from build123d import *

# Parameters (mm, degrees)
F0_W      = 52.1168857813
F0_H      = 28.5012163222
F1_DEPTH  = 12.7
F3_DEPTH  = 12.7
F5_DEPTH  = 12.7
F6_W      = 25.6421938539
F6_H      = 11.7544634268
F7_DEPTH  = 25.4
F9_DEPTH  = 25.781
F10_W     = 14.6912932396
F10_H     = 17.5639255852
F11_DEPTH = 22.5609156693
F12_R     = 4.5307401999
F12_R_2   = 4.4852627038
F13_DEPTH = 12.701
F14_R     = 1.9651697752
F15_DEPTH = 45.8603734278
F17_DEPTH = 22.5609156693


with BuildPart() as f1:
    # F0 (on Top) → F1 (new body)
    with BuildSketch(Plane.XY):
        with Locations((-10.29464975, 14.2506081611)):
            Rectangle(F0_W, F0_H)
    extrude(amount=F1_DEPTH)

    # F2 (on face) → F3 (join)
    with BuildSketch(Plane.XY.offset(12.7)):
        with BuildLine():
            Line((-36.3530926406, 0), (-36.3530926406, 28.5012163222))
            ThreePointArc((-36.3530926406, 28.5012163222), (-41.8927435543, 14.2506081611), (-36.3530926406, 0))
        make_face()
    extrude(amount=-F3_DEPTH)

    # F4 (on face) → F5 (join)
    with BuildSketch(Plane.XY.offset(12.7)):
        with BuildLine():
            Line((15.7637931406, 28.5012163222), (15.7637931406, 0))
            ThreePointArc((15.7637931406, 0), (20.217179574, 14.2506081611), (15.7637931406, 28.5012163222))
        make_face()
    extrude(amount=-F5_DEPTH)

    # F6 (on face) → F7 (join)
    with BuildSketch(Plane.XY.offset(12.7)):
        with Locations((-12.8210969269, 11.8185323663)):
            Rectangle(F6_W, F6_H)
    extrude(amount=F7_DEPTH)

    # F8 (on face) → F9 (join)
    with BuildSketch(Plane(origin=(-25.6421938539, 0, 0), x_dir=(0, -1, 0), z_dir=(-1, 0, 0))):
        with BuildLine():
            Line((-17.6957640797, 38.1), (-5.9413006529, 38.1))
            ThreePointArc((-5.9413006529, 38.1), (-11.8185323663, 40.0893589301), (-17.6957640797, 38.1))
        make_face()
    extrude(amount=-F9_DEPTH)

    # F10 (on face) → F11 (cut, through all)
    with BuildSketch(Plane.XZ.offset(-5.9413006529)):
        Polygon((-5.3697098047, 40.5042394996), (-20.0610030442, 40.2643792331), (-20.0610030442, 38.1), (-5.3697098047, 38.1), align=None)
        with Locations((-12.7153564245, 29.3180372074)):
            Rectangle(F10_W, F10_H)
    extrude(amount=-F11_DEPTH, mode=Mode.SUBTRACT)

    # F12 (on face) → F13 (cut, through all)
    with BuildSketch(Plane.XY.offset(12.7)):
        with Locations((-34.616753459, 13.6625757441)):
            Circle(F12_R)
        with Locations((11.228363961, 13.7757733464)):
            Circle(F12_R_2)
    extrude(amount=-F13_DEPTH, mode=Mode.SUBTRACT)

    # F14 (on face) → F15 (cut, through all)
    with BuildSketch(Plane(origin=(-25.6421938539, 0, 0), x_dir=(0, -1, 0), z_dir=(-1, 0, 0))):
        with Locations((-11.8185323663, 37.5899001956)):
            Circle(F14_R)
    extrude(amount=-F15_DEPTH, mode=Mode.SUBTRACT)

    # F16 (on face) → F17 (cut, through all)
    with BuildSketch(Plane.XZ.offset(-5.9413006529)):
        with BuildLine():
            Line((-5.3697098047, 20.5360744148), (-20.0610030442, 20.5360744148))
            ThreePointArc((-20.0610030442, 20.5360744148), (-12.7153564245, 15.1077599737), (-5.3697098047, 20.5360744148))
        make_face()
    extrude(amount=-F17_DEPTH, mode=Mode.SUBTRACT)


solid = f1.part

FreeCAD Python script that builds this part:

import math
import FreeCAD as App
import Part
import Sketcher
Q = App.Units.Quantity

doc = App.newDocument("Part")
body = doc.addObject("PartDesign::Body", "Body")

sketch1 = body.newObject("Sketcher::SketchObject", "Sketch")
sketch1.AttachmentSupport = (doc.getObject("XY_Plane"), [""])
sketch1.MapMode = "FlatFace"
sketch1.addGeometry([
    Part.LineSegment(App.Vector(-36, 29, 0), App.Vector(-36, 0, 0)),
    Part.LineSegment(App.Vector(-36, 0, 0), App.Vector(16, 0, 0)),
    Part.LineSegment(App.Vector(16, 0, 0), App.Vector(16, 29, 0)),
    Part.LineSegment(App.Vector(16, 29, 0), App.Vector(-36, 29, 0)),
], False)
sketch1.addConstraint([
    Sketcher.Constraint("Coincident", 0, 2, 1, 1),
    Sketcher.Constraint("Coincident", 1, 2, 2, 1),
    Sketcher.Constraint("Coincident", 2, 2, 3, 1),
    Sketcher.Constraint("Coincident", 3, 2, 0, 1),
    Sketcher.Constraint("Vertical", 0),
    Sketcher.Constraint("Horizontal", 1),
    Sketcher.Constraint("Vertical", 2),
    Sketcher.Constraint("Horizontal", 3),
    Sketcher.Constraint("PointOnObject", 0, 2, -1),
    Sketcher.Constraint("DistanceX", 1, 1, 1, 2, Q("52.116886 mm")),
    Sketcher.Constraint("DistanceY", 0, 2, 0, 1, Q("28.501216 mm")),
    Sketcher.Constraint("DistanceX", 0, 2, -1, 1, Q("36.353093 mm")),
])
pad1 = body.newObject("PartDesign::Pad", "Pad")
pad1.Profile = sketch1
pad1.Length = Q("0.5 in")

sketch2 = body.newObject("Sketcher::SketchObject", "Sketch001")
sketch2.AttachmentSupport = (doc.getObject("XY_Plane"), [""])
sketch2.MapMode = "FlatFace"
sketch2.AttachmentOffset = App.Placement(App.Vector(0, 0, 0.5 * 25.4), App.Rotation())
sketch2.addGeometry([
    Part.LineSegment(App.Vector(-36, 0, 0), App.Vector(-36, 29, 0)),
    Part.ArcOfCircle(Part.Circle(App.Vector(-21, 14, 0), App.Vector(0, 0, 1), 21), math.radians(138), math.radians(222)),
], False)
sketch2.addConstraint([
    Sketcher.Constraint("Coincident", 0, 1, 1, 2),
    Sketcher.Constraint("Coincident", 1, 1, 0, 2),
    Sketcher.Constraint("Vertical", 0),
    Sketcher.Constraint("PointOnObject", 0, 1, -1),
    Sketcher.Constraint("Radius", 1, Q("21.099485 mm")),
    Sketcher.Constraint("DistanceY", 0, 1, 0, 2, Q("28.501216 mm")),
    Sketcher.Constraint("DistanceX", 1, 3, -1, 1, Q("20.793258 mm")),
])
pad2 = body.newObject("PartDesign::Pad", "Pad001")
pad2.Profile = sketch2
pad2.Length = Q("0.5 in")
pad2.Reversed = True

sketch3 = body.newObject("Sketcher::SketchObject", "Sketch002")
sketch3.AttachmentSupport = (doc.getObject("XY_Plane"), [""])
sketch3.MapMode = "FlatFace"
sketch3.AttachmentOffset = App.Placement(App.Vector(0, 0, 0.5 * 25.4), App.Rotation())
sketch3.addGeometry([
    Part.LineSegment(App.Vector(16, 29, 0), App.Vector(16, 0, 0)),
    Part.ArcOfCircle(Part.Circle(App.Vector(-5, 14, 0), App.Vector(0, 0, 1), 25), math.radians(-35), math.radians(35)),
], False)
sketch3.addConstraint([
    Sketcher.Constraint("Coincident", 0, 1, 1, 2),
    Sketcher.Constraint("Coincident", 1, 1, 0, 2),
    Sketcher.Constraint("Vertical", 0),
    Sketcher.Constraint("PointOnObject", 1, 1, -1),
    Sketcher.Constraint("Radius", 1, Q("25.027301 mm")),
    Sketcher.Constraint("DistanceY", 0, 2, 0, 1, Q("28.501216 mm")),
    Sketcher.Constraint("DistanceX", 1, 3, -1, 1, Q("4.810121 mm")),
])
pad3 = body.newObject("PartDesign::Pad", "Pad002")
pad3.Profile = sketch3
pad3.Length = Q("0.5 in")
pad3.Reversed = True

sketch4 = body.newObject("Sketcher::SketchObject", "Sketch003")
sketch4.AttachmentSupport = (doc.getObject("XY_Plane"), [""])
sketch4.MapMode = "FlatFace"
sketch4.AttachmentOffset = App.Placement(App.Vector(0, 0, 0.5 * 25.4), App.Rotation())
sketch4.addGeometry([
    Part.LineSegment(App.Vector(-26, 18, 0), App.Vector(-26, 6, 0)),
    Part.LineSegment(App.Vector(-26, 6, 0), App.Vector(0, 6, 0)),
    Part.LineSegment(App.Vector(0, 6, 0), App.Vector(0, 18, 0)),
    Part.LineSegment(App.Vector(0, 18, 0), App.Vector(-26, 18, 0)),
], False)
sketch4.addConstraint([
    Sketcher.Constraint("Coincident", 0, 2, 1, 1),
    Sketcher.Constraint("Coincident", 1, 2, 2, 1),
    Sketcher.Constraint("Coincident", 2, 2, 3, 1),
    Sketcher.Constraint("Coincident", 3, 2, 0, 1),
    Sketcher.Constraint("Vertical", 0),
    Sketcher.Constraint("Horizontal", 1),
    Sketcher.Constraint("Vertical", 2),
    Sketcher.Constraint("Horizontal", 3),
    Sketcher.Constraint("PointOnObject", 1, 2, -2),
    Sketcher.Constraint("DistanceY", -1, 1, 0, 2, Q("5.941301 mm")),
    Sketcher.Constraint("DistanceX", 1, 1, 1, 2, Q("25.642194 mm")),
    Sketcher.Constraint("DistanceY", 0, 2, 0, 1, Q("11.754463 mm")),
])
pad4 = body.newObject("PartDesign::Pad", "Pad003")
pad4.Profile = sketch4
pad4.Length = Q("1 in")

sketch5 = body.newObject("Sketcher::SketchObject", "Sketch004")
sketch5.AttachmentSupport = (doc.getObject("YZ_Plane"), [""])
sketch5.MapMode = "FlatFace"
sketch5.AttachmentOffset = App.Placement(App.Vector(0, 0, -25.642194), App.Rotation())
sketch5.addGeometry([
    Part.LineSegment(App.Vector(18, 38, 0), App.Vector(6, 38, 0)),
    Part.ArcOfCircle(Part.Circle(App.Vector(12, 30, 0), App.Vector(0, 0, 1), 10), math.radians(53), math.radians(127)),
], False)
sketch5.addConstraint([
    Sketcher.Constraint("Coincident", 0, 1, 1, 1),
    Sketcher.Constraint("Coincident", 1, 2, 0, 2),
    Sketcher.Constraint("Horizontal", 0),
    Sketcher.Constraint("DistanceY", -1, 1, 0, 1, Q("1.5 in")),
    Sketcher.Constraint("Radius", 1, Q("9.676334 mm")),
    Sketcher.Constraint("DistanceX", -1, 1, 1, 2, Q("5.941301 mm")),
    Sketcher.Constraint("DistanceX", 0, 2, 0, 1, Q("11.754463 mm")),
])
pad5 = body.newObject("PartDesign::Pad", "Pad004")
pad5.Profile = sketch5
pad5.Length = Q("1.015 in")

sketch6 = body.newObject("Sketcher::SketchObject", "Sketch005")
sketch6.AttachmentSupport = (doc.getObject("XZ_Plane"), [""])
sketch6.MapMode = "FlatFace"
sketch6.AttachmentOffset = App.Placement(App.Vector(0, 0, -5.941301), App.Rotation())
sketch6.addGeometry([
    Part.LineSegment(App.Vector(-5.4, 40.5, 0), App.Vector(-20.1, 40.3, 0)),
    Part.LineSegment(App.Vector(-20.1, 40.3, 0), App.Vector(-20.1, 38.1, 0)),
    Part.LineSegment(App.Vector(-20.1, 38.1, 0), App.Vector(-20.1, 20.5, 0)),
    Part.LineSegment(App.Vector(-20.1, 20.5, 0), App.Vector(-5.4, 20.5, 0)),
    Part.LineSegment(App.Vector(-5.4, 20.5, 0), App.Vector(-5.4, 40.5, 0)),
], False)
sketch6.addConstraint([
    Sketcher.Constraint("Coincident", 0, 2, 1, 1),
    Sketcher.Constraint("Coincident", 1, 2, 2, 1),
    Sketcher.Constraint("Coincident", 2, 2, 3, 1),
    Sketcher.Constraint("Coincident", 3, 2, 4, 1),
    Sketcher.Constraint("Coincident", 4, 2, 0, 1),
    Sketcher.Constraint("Vertical", 1),
    Sketcher.Constraint("Vertical", 2),
    Sketcher.Constraint("Horizontal", 3),
    Sketcher.Constraint("Vertical", 4),
    Sketcher.Constraint("DistanceY", -1, 1, 1, 2, Q("1.5 in")),
    Sketcher.Constraint("DistanceY", 1, 2, 1, 1, Q("2.164379 mm")),
    Sketcher.Constraint("Distance", 0, Q("14.693251 mm")),
    Sketcher.Constraint("DistanceX", 3, 1, 3, 2, Q("14.691293 mm")),
    Sketcher.Constraint("DistanceY", 2, 2, 2, 1, Q("17.563926 mm")),
    Sketcher.Constraint("DistanceX", 3, 2, -1, 1, Q("5.36971 mm")),
])
pocket1 = body.newObject("PartDesign::Pocket", "Pocket")
pocket1.Profile = sketch6
pocket1.Type = "ThroughAll"

sketch7 = body.newObject("Sketcher::SketchObject", "Sketch006")
sketch7.AttachmentSupport = (doc.getObject("XY_Plane"), [""])
sketch7.MapMode = "FlatFace"
sketch7.AttachmentOffset = App.Placement(App.Vector(0, 0, 0.5 * 25.4), App.Rotation())
sketch7.addGeometry([
    Part.Circle(App.Vector(-34.6, 13.7, 0), App.Vector(0, 0, 1), 4.5),
    Part.Circle(App.Vector(11.2, 13.8, 0), App.Vector(0, 0, 1), 4.5),
], False)
sketch7.addConstraint([
    Sketcher.Constraint("Diameter", 0, Q("9.06148 mm")),
    Sketcher.Constraint("Diameter", 1, Q("8.970525 mm")),
    Sketcher.Constraint("DistanceX", 0, 3, -1, 1, Q("34.616753 mm")),
    Sketcher.Constraint("DistanceY", -1, 1, 0, 3, Q("13.662576 mm")),
    Sketcher.Constraint("DistanceX", -1, 1, 1, 3, Q("11.228364 mm")),
    Sketcher.Constraint("DistanceY", -1, 1, 1, 3, Q("13.775773 mm")),
])
pocket2 = body.newObject("PartDesign::Pocket", "Pocket001")
pocket2.Profile = sketch7
pocket2.Type = "ThroughAll"

sketch8 = body.newObject("Sketcher::SketchObject", "Sketch007")
sketch8.AttachmentSupport = (doc.getObject("YZ_Plane"), [""])
sketch8.MapMode = "FlatFace"
sketch8.AttachmentOffset = App.Placement(App.Vector(0, 0, -25.642194), App.Rotation())
sketch8.addGeometry(Part.Circle(App.Vector(11.8, 37.6, 0), App.Vector(0, 0, 1), 2), False)
sketch8.addConstraint([
    Sketcher.Constraint("Diameter", 0, Q("3.93034 mm")),
    Sketcher.Constraint("DistanceY", -1, 1, 0, 3, Q("37.5899 mm")),
    Sketcher.Constraint("DistanceX", -1, 1, 0, 3, Q("11.818532 mm")),
])
pocket3 = body.newObject("PartDesign::Pocket", "Pocket002")
pocket3.Profile = sketch8
pocket3.Type = "ThroughAll"
pocket3.Reversed = True

sketch9 = body.newObject("Sketcher::SketchObject", "Sketch008")
sketch9.AttachmentSupport = (doc.getObject("XZ_Plane"), [""])
sketch9.MapMode = "FlatFace"
sketch9.AttachmentOffset = App.Placement(App.Vector(0, 0, -5.941301), App.Rotation())
sketch9.addGeometry([
    Part.LineSegment(App.Vector(-5, 21, 0), App.Vector(-20, 21, 0)),
    Part.ArcOfCircle(Part.Circle(App.Vector(-13, 23, 0), App.Vector(0, 0, 1), 8), math.radians(-163), math.radians(-17)),
], False)
sketch9.addConstraint([
    Sketcher.Constraint("Coincident", 0, 1, 1, 2),
    Sketcher.Constraint("Coincident", 1, 1, 0, 2),
    Sketcher.Constraint("Horizontal", 0),
    Sketcher.Constraint("Radius", 1, Q("7.684257 mm")),
    Sketcher.Constraint("DistanceX", 0, 2, 0, 1, Q("14.691293 mm")),
    Sketcher.Constraint("DistanceX", 0, 1, -1, 1, Q("5.36971 mm")),
    Sketcher.Constraint("DistanceY", -1, 1, 1, 3, Q("22.792017 mm")),
])
pocket4 = body.newObject("PartDesign::Pocket", "Pocket003")
pocket4.Profile = sketch9
pocket4.Type = "ThroughAll"

doc.recompute()
